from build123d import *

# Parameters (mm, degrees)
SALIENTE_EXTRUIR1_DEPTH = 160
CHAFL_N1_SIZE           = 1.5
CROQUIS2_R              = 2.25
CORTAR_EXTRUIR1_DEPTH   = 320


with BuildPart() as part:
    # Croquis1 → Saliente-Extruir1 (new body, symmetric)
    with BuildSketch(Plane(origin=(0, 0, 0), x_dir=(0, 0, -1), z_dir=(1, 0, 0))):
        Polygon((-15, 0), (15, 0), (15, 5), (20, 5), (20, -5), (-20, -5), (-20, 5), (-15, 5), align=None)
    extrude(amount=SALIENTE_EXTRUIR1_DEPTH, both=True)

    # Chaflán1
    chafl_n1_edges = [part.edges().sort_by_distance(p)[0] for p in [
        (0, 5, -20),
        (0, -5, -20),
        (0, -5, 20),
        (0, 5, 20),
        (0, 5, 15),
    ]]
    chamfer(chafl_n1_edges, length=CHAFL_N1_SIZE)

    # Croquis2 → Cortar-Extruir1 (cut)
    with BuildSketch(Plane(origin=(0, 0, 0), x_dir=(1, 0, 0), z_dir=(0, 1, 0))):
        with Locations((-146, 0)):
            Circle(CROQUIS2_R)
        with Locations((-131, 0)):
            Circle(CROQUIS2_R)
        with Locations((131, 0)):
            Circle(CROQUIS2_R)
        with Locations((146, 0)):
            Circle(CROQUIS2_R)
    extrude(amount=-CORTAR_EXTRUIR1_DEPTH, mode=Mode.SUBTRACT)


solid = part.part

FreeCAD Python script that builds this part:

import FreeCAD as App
import Part
import Sketcher

V = App.Vector
Q = App.Units.Quantity


def edges_at(feature, points):
    """Names of the edges that pass closest to the given points."""
    edges = feature.Shape.Edges
    near = lambda p: min(range(len(edges)), key=lambda i: edges[i].distToShape(Part.Vertex(*p))[0])
    return sorted({f"Edge{near(p) + 1}" for p in points})

doc = App.newDocument("Part")
body = doc.addObject("PartDesign::Body", "Body")

# Sketch on YZ plane
sketch1 = body.newObject("Sketcher::SketchObject", "Sketch")
sketch1.AttachmentSupport = (doc.getObject("YZ_Plane"), [""])
sketch1.MapMode = "FlatFace"
sketch1.addGeometry([
    Part.LineSegment(V(0, -15, 0), V(0, 15, 0)),  # 0
    Part.LineSegment(V(0, 15, 0), V(5, 15, 0)),  # 1
    Part.LineSegment(V(5, 15, 0), V(5, 20, 0)),  # 2
    Part.LineSegment(V(5, 20, 0), V(-5, 20, 0)),  # 3
    Part.LineSegment(V(-5, 20, 0), V(-5, -20, 0)),  # 4
    Part.LineSegment(V(-5, -20, 0), V(5, -20, 0)),  # 5
    Part.LineSegment(V(5, -20, 0), V(5, -15, 0)),  # 6
    Part.LineSegment(V(5, -15, 0), V(0, -15, 0)),  # 7
], False)
sketch1.addConstraint([
    Sketcher.Constraint("Coincident", 0, 2, 1, 1),
    Sketcher.Constraint("Coincident", 1, 2, 2, 1),
    Sketcher.Constraint("Coincident", 2, 2, 3, 1),
    Sketcher.Constraint("Coincident", 3, 2, 4, 1),
    Sketcher.Constraint("Coincident", 4, 2, 5, 1),
    Sketcher.Constraint("Coincident", 5, 2, 6, 1),
    Sketcher.Constraint("Coincident", 6, 2, 7, 1),
    Sketcher.Constraint("Coincident", 7, 2, 0, 1),
    Sketcher.Constraint("Vertical", 0),
    Sketcher.Constraint("Horizontal", 1),
    Sketcher.Constraint("Vertical", 2),
    Sketcher.Constraint("Horizontal", 3),
    Sketcher.Constraint("Vertical", 4),
    Sketcher.Constraint("Horizontal", 5),
    Sketcher.Constraint("Vertical", 6),
    Sketcher.Constraint("Horizontal", 7),
    Sketcher.Constraint("Symmetric", 2, 2, 4, 2, -1, 1),
    Sketcher.Constraint("Symmetric", 0, 2, 7, 2, -1, 1),
    Sketcher.Constraint("Vertical", 2, 2, 5, 2),
    Sketcher.Constraint("Equal", 7, 2),
    Sketcher.Constraint("DistanceX", 1, 1, 1, 2, Q("5 mm")),
    Sketcher.Constraint("DistanceY", 0, 1, 0, 2, Q("30 mm")),
])
pad1 = body.newObject("PartDesign::Pad", "Pad")
pad1.Profile = sketch1
pad1.Length = 320
pad1.Midplane = True
doc.recompute()

chamfer = body.newObject("PartDesign::Chamfer", "Chamfer")
chamfer.Base = (pad1, edges_at(pad1, [
    (0, 5, -20),
    (0, -5, -20),
    (0, -5, 20),
    (0, 5, 20),
    (0, 5, 15),
]))
chamfer.Size = 1.5

# Sketch on XZ plane
sketch2 = body.newObject("Sketcher::SketchObject", "Sketch001")
sketch2.AttachmentSupport = (doc.getObject("XZ_Plane"), [""])
sketch2.MapMode = "FlatFace"
sketch2.addGeometry([
    Part.Circle(V(-146, 0, 0), V(0, 0, 1), 2.2),
    Part.Circle(V(-131, 0, 0), V(0, 0, 1), 2.2),
    Part.Circle(V(131, 0, 0), V(0, 0, 1), 2.2),
    Part.Circle(V(146, 0, 0), V(0, 0, 1), 2.2),
], False)
sketch2.addConstraint([
    Sketcher.Constraint("Equal", 0, 1),
    Sketcher.Constraint("Equal", 1, 2),
    Sketcher.Constraint("Equal", 2, 3),
    Sketcher.Constraint("Symmetric", 1, 3, 2, 3, -1, 1),
    Sketcher.Constraint("Symmetric", 0, 3, 3, 3, -1, 1),
    Sketcher.Constraint("PointOnObject", 0, 3, -1),
    Sketcher.Constraint("PointOnObject", 1, 3, -1),
    Sketcher.Constraint("Diameter", 0, Q("4.5 mm")),
    Sketcher.Constraint("DistanceX", 0, 3, -1, 1, Q("146 mm")),
    Sketcher.Constraint("DistanceX", 1, 3, -1, 1, Q("131 mm")),
])
pocket1 = body.newObject("PartDesign::Pocket", "Pocket")
pocket1.Profile = sketch2
pocket1.Length = 320
pocket1.Reversed = True

doc.recompute()
